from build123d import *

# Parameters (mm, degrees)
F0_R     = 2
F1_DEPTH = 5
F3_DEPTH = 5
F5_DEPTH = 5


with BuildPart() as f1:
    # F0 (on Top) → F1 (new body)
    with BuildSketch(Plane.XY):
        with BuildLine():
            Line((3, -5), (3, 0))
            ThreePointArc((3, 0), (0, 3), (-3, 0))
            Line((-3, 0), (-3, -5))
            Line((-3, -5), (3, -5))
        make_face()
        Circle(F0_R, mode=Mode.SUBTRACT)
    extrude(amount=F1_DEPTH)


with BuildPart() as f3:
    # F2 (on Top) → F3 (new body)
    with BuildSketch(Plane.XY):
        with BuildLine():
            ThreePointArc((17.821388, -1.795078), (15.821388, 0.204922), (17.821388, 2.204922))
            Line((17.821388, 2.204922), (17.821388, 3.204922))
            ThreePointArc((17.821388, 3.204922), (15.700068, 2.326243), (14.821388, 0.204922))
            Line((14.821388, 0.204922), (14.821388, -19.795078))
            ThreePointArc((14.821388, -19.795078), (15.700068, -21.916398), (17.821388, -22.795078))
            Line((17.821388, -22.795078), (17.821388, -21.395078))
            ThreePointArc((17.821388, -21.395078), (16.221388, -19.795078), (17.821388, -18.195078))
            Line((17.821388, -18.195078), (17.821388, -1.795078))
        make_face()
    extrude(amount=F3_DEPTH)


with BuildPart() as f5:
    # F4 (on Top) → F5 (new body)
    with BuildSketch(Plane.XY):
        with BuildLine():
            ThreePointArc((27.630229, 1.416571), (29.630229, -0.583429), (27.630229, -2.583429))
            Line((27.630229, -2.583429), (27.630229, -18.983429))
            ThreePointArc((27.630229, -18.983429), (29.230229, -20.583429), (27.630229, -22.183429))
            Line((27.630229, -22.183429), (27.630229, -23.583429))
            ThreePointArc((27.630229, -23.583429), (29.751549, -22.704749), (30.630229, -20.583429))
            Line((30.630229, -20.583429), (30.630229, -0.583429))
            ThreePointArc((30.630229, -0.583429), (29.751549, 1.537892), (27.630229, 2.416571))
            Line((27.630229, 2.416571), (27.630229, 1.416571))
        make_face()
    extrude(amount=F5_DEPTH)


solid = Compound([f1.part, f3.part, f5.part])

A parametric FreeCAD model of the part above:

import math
import FreeCAD as App
import Part
import Sketcher
from FreeCAD import Vector
Q = App.Units.Quantity

doc = App.newDocument("Part")
body = doc.addObject("PartDesign::Body", "Body")

# Sketch on XY plane
sketch1 = doc.addObject("Sketcher::SketchObject", "Sketch")
body.addObject(sketch1)
sketch1.AttachmentSupport = (doc.XY_Plane, [""])
sketch1.MapMode = "FlatFace"
sketch1.addGeometry([
    Part.LineSegment(Vector(3, -5, 0), Vector(3, 0, 0)),  # 0
    Part.ArcOfCircle(Part.Circle(Vector(0, 0, 0), Vector(0, 0, 1), 3), math.radians(0), math.radians(180)),  # 1
    Part.LineSegment(Vector(-3, 0, 0), Vector(-3, -5, 0)),  # 2
    Part.LineSegment(Vector(-3, -5, 0), Vector(3, -5, 0)),  # 3
    Part.Circle(Vector(0, 0, 0), Vector(0, 0, 1), 2),  # 4
], False)
sketch1.addConstraint([
    Sketcher.Constraint("Tangent", 0, 2, 1, 1),
    Sketcher.Constraint("Tangent", 1, 2, 2, 1),
    Sketcher.Constraint("Coincident", 2, 2, 3, 1),
    Sketcher.Constraint("Coincident", 3, 2, 0, 1),
    Sketcher.Constraint("Vertical", 0),
    Sketcher.Constraint("Vertical", 2),
    Sketcher.Constraint("Horizontal", 3),
    Sketcher.Constraint("Coincident", 1, 3, -1, 1),
    Sketcher.Constraint("Coincident", 4, 3, -1, 1),
    Sketcher.Constraint("Diameter", 4, Q("4 mm")),
    Sketcher.Constraint("Radius", 1, Q("3 mm")),
    Sketcher.Constraint("DistanceY", 0, 1, 0, 2, Q("5 mm")),
])
pad1 = doc.addObject("PartDesign::Pad", "Pad")
body.addObject(pad1)
pad1.Profile = sketch1
pad1.Length = 5
body2 = doc.addObject("PartDesign::Body", "Body001")

# Sketch on XY plane
sketch2 = doc.addObject("Sketcher::SketchObject", "Sketch001")
body2.addObject(sketch2)
sketch2.AttachmentSupport = (doc.getObject("XY_Plane001"), [""])
sketch2.MapMode = "FlatFace"
sketch2.addGeometry([
    Part.ArcOfCircle(Part.Circle(Vector(17.8, 0.2, 0), Vector(0, 0, 1), 2), math.radians(90), math.radians(270)),  # 0
    Part.LineSegment(Vector(17.8, 2.2, 0), Vector(17.8, 3.2, 0)),  # 1
    Part.ArcOfCircle(Part.Circle(Vector(17.8, 0.2, 0), Vector(0, 0, 1), 3), math.radians(90), math.radians(180)),  # 2
    Part.LineSegment(Vector(14.8, 0.2, 0), Vector(14.8, -19.8, 0)),  # 3
    Part.ArcOfCircle(Part.Circle(Vector(17.8, -19.8, 0), Vector(0, 0, 1), 3), math.radians(-180), math.radians(-90)),  # 4
    Part.LineSegment(Vector(17.8, -22.8, 0), Vector(17.8, -21.4, 0)),  # 5
    Part.ArcOfCircle(Part.Circle(Vector(17.8, -19.8, 0), Vector(0, 0, 1), 1.6), math.radians(90), math.radians(270)),  # 6
    Part.LineSegment(Vector(17.8, -18.2, 0), Vector(17.8, -1.8, 0)),  # 7
], False)
sketch2.addConstraint([
    Sketcher.Constraint("Coincident", 0, 1, 1, 1),
    Sketcher.Constraint("Coincident", 1, 2, 2, 1),
    Sketcher.Constraint("Tangent", 2, 2, 3, 1),
    Sketcher.Constraint("Tangent", 3, 2, 4, 1),
    Sketcher.Constraint("Coincident", 4, 2, 5, 1),
    Sketcher.Constraint("Coincident", 5, 2, 6, 2),
    Sketcher.Constraint("Coincident", 6, 1, 7, 1),
    Sketcher.Constraint("Coincident", 7, 2, 0, 2),
    Sketcher.Constraint("Vertical", 1),
    Sketcher.Constraint("Vertical", 3),
    Sketcher.Constraint("Vertical", 5),
    Sketcher.Constraint("Vertical", 7),
    Sketcher.Constraint("Coincident", 2, 3, 0, 3),
    Sketcher.Constraint("Coincident", 6, 3, 4, 3),
    Sketcher.Constraint("Equal", 2, 4),
    Sketcher.Constraint("Vertical", 6, 3, 0, 1),
    Sketcher.Constraint("Vertical", 1, 2, 4, 2),
    Sketcher.Constraint("Vertical", 5, 2, 6, 1),
    Sketcher.Constraint("Radius", 0, Q("2 mm")),
    Sketcher.Constraint("Radius", 2, Q("2.999999 mm")),
    Sketcher.Constraint("Radius", 6, Q("1.6 mm")),
    Sketcher.Constraint("DistanceY", 3, 2, 3, 1, Q("20 mm")),
    Sketcher.Constraint("DistanceX", -1, 1, 4, 3, Q("17.821389 mm")),
    Sketcher.Constraint("DistanceY", 6, 3, -1, 1, Q("19.795078 mm")),
])
pad2 = doc.addObject("PartDesign::Pad", "Pad001")
body2.addObject(pad2)
pad2.Profile = sketch2
pad2.Length = 5
body3 = doc.addObject("PartDesign::Body", "Body002")

# Sketch on XY plane
sketch3 = doc.addObject("Sketcher::SketchObject", "Sketch002")
body3.addObject(sketch3)
sketch3.AttachmentSupport = (doc.getObject("XY_Plane002"), [""])
sketch3.MapMode = "FlatFace"
sketch3.addGeometry([
    Part.ArcOfCircle(Part.Circle(Vector(27.6, -0.6, 0), Vector(0, 0, 1), 2), math.radians(-90), math.radians(90)),  # 0
    Part.LineSegment(Vector(27.6, -2.6, 0), Vector(27.6, -19, 0)),  # 1
    Part.ArcOfCircle(Part.Circle(Vector(27.6, -20.6, 0), Vector(0, 0, 1), 1.6), math.radians(-90), math.radians(90)),  # 2
    Part.LineSegment(Vector(27.6, -22.2, 0), Vector(27.6, -23.6, 0)),  # 3
    Part.ArcOfCircle(Part.Circle(Vector(27.6, -20.6, 0), Vector(0, 0, 1), 3), math.radians(-90), math.radians(0)),  # 4
    Part.LineSegment(Vector(30.6, -20.6, 0), Vector(30.6, -0.6, 0)),  # 5
    Part.ArcOfCircle(Part.Circle(Vector(27.6, -0.6, 0), Vector(0, 0, 1), 3), math.radians(0), math.radians(90)),  # 6
    Part.LineSegment(Vector(27.6, 2.4, 0), Vector(27.6, 1.4, 0)),  # 7
], False)
sketch3.addConstraint([
    Sketcher.Constraint("Coincident", 0, 1, 1, 1),
    Sketcher.Constraint("Coincident", 1, 2, 2, 2),
    Sketcher.Constraint("Coincident", 2, 1, 3, 1),
    Sketcher.Constraint("Coincident", 3, 2, 4, 1),
    Sketcher.Constraint("Tangent", 4, 2, 5, 1),
    Sketcher.Constraint("Tangent", 5, 2, 6, 1),
    Sketcher.Constraint("Coincident", 6, 2, 7, 1),
    Sketcher.Constraint("Coincident", 7, 2, 0, 2),
    Sketcher.Constraint("Vertical", 1),
    Sketcher.Constraint("Vertical", 3),
    Sketcher.Constraint("Vertical", 5),
    Sketcher.Constraint("Vertical", 7),
    Sketcher.Constraint("Coincident", 4, 3, 2, 3),
    Sketcher.Constraint("Coincident", 6, 3, 0, 3),
    Sketcher.Constraint("Equal", 4, 6),
    Sketcher.Constraint("Vertical", 6, 3, 0, 1),
    Sketcher.Constraint("Vertical", 1, 2, 2, 1),
    Sketcher.Constraint("Vertical", 3, 2, 6, 2),
    Sketcher.Constraint("Radius", 0, Q("2 mm")),
    Sketcher.Constraint("Radius", 4, Q("3.000001 mm")),
    Sketcher.Constraint("Radius", 2, Q("1.6 mm")),
    Sketcher.Constraint("DistanceY", 5, 1, 5, 2, Q("20 mm")),
    Sketcher.Constraint("DistanceX", -1, 1, 0, 3, Q("27.630229 mm")),
    Sketcher.Constraint("DistanceY", 0, 3, -1, 1, Q("0.583429 mm")),
])
pad3 = doc.addObject("PartDesign::Pad", "Pad002")
body3.addObject(pad3)
pad3.Profile = sketch3
pad3.Length = 5

doc.recompute()
